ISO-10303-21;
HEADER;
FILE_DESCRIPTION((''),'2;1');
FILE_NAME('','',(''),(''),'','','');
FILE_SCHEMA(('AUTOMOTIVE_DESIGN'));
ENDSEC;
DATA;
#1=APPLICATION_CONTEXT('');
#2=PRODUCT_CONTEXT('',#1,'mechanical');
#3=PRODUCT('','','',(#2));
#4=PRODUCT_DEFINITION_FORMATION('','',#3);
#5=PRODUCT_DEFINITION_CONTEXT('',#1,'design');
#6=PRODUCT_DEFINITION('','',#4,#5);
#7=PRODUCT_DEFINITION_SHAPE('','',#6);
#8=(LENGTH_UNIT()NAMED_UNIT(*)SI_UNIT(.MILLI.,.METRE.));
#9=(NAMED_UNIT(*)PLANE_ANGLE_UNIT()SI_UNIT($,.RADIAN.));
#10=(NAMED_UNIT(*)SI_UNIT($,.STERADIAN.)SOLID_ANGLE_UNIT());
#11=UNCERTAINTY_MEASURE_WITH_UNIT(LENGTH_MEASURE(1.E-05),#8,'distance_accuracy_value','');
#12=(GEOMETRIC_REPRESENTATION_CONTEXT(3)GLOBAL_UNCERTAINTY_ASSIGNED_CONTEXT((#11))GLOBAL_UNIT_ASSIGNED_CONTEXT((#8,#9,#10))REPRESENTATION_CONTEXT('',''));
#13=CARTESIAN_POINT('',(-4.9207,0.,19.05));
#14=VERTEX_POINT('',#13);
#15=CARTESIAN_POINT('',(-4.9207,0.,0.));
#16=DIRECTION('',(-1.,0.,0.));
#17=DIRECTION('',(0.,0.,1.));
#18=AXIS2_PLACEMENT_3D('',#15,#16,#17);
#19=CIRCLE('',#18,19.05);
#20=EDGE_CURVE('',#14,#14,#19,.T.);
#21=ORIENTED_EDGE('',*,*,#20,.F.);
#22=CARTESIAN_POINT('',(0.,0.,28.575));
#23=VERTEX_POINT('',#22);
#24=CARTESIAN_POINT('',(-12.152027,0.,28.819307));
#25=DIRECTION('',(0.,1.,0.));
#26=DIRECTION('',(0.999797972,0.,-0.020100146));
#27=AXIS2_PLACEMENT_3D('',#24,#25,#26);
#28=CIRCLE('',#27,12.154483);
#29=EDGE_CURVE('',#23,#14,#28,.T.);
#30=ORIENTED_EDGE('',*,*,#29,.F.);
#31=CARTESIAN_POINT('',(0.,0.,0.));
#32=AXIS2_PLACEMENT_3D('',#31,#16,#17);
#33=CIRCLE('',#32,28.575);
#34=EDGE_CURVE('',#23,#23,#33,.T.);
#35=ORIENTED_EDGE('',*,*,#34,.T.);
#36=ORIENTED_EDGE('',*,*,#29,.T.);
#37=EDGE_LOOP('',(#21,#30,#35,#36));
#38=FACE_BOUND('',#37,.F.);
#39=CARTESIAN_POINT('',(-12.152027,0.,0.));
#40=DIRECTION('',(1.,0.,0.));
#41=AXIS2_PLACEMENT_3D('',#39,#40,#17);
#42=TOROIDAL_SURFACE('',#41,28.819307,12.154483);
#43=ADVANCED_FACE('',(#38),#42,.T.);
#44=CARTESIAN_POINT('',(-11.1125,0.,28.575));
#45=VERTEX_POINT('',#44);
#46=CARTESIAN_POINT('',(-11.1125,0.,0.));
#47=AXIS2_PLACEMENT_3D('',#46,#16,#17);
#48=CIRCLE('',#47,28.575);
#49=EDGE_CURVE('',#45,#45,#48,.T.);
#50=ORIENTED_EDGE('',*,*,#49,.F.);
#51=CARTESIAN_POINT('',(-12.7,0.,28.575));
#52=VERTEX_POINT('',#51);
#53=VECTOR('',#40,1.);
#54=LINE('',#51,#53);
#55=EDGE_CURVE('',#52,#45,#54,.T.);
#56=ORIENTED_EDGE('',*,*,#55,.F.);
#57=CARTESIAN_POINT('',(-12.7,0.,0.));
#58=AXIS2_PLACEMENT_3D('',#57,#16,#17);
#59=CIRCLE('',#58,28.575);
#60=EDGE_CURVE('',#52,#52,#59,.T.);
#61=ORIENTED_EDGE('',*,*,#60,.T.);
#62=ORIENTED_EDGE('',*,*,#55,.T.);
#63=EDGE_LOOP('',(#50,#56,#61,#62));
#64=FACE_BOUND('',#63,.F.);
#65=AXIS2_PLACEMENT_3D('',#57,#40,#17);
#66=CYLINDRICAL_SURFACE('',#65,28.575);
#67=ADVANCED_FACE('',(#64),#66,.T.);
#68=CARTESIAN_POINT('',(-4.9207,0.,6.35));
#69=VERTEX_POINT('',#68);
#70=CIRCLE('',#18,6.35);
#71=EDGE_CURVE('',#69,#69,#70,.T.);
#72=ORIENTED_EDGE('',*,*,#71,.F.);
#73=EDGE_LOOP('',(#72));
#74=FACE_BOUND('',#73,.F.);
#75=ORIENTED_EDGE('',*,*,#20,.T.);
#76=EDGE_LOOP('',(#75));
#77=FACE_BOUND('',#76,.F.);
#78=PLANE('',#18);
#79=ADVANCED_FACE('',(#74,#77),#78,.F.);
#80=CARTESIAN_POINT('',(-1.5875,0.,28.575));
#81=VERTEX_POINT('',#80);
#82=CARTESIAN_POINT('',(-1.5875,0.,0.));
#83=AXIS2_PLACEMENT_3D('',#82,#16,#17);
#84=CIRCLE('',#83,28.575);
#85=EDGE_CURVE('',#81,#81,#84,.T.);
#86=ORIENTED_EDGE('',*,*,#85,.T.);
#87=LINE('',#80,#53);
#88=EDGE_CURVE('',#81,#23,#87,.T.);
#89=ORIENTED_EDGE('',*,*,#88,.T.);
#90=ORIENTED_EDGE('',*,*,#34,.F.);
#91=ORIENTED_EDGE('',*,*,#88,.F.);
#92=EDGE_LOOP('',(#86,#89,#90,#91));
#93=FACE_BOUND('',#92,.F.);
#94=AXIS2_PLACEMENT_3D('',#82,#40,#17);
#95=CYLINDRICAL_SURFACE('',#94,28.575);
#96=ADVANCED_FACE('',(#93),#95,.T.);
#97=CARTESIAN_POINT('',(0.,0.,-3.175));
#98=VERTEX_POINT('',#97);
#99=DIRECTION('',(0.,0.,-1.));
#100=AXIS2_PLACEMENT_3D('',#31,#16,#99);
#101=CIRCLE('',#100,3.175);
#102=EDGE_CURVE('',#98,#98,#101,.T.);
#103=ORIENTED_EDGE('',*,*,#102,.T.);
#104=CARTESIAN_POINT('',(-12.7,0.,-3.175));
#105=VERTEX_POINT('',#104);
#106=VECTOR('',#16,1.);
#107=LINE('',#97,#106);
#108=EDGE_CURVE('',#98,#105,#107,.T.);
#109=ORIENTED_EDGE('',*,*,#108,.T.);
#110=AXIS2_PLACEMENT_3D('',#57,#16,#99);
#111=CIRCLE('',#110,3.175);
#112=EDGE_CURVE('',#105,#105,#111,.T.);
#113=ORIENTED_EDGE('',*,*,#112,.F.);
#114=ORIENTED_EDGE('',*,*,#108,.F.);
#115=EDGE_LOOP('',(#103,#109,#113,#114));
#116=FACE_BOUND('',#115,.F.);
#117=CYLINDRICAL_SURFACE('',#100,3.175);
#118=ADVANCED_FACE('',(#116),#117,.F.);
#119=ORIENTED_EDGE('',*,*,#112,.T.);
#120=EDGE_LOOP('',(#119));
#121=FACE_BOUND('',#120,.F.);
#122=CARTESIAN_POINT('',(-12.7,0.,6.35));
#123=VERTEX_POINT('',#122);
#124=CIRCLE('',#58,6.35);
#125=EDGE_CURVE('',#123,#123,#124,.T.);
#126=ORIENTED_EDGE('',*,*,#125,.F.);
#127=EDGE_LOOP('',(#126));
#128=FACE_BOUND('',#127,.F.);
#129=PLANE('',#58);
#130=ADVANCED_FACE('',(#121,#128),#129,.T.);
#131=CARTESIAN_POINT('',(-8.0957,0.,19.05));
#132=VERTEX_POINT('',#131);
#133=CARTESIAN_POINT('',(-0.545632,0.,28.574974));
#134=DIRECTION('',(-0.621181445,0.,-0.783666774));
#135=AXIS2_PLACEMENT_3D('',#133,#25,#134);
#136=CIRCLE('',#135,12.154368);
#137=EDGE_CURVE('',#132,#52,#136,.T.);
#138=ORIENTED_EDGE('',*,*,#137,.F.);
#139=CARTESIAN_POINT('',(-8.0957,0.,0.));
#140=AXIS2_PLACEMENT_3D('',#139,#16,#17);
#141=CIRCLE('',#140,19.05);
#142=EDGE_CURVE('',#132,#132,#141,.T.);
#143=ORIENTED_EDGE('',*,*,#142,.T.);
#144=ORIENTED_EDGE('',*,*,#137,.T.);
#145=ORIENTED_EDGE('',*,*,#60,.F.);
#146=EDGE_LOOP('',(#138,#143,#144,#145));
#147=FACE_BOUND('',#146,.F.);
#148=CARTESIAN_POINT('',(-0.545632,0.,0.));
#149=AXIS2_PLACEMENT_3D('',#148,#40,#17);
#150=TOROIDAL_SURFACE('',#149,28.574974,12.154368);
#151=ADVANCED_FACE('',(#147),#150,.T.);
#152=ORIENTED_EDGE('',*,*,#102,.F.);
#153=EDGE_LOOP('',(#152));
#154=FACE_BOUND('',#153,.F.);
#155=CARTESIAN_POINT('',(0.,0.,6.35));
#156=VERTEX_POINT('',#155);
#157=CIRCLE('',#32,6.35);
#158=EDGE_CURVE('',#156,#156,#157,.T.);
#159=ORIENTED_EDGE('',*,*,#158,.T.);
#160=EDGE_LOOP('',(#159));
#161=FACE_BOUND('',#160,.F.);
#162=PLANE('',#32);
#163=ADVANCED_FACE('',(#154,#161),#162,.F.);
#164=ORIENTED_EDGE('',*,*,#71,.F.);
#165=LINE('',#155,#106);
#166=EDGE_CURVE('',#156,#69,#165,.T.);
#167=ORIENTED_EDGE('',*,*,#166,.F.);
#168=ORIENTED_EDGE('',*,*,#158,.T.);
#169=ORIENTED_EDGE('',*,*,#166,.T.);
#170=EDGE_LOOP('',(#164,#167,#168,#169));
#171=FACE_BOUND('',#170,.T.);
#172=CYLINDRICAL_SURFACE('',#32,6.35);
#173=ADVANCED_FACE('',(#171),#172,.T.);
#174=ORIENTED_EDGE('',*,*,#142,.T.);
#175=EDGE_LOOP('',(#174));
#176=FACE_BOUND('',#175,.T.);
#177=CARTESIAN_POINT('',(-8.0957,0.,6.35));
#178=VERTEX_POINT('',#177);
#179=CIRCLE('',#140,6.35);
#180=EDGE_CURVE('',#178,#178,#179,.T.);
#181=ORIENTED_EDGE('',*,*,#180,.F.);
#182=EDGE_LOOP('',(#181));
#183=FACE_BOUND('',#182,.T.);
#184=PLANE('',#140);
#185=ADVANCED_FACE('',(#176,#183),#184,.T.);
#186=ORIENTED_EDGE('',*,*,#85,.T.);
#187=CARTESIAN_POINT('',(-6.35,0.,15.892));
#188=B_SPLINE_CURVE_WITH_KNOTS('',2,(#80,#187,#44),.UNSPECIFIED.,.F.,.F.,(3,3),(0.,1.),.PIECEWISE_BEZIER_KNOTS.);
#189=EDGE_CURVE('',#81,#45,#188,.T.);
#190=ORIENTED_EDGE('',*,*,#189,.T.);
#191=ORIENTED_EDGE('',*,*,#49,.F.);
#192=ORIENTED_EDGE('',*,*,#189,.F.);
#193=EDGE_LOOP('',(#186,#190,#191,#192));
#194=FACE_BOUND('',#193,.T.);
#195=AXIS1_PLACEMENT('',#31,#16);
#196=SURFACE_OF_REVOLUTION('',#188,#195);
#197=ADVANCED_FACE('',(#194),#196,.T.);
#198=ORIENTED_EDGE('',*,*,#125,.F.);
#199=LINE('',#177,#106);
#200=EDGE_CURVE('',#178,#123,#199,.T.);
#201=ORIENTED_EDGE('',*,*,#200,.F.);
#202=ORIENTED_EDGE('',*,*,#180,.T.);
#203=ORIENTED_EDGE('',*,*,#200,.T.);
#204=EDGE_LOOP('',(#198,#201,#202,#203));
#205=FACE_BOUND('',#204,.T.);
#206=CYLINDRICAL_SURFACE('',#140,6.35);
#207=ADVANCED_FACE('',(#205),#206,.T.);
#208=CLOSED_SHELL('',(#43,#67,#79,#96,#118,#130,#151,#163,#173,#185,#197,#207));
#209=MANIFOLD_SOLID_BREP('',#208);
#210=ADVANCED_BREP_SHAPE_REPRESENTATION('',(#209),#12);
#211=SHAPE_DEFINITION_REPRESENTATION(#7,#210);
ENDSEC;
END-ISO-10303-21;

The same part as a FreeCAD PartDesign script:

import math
import FreeCAD as App
import Part
import Sketcher

V = App.Vector
Q = App.Units.Quantity

doc = App.newDocument("Part")
body = doc.addObject("PartDesign::Body", "Body")

# Sketch on XZ plane
sketch1 = doc.addObject("Sketcher::SketchObject", "Sketch")
body.addObject(sketch1)
sketch1.AttachmentSupport = (doc.XZ_Plane, [""])
sketch1.MapMode = "FlatFace"
sketch1.addGeometry([
    Part.LineSegment(V(0, 6.35, 0), V(0, 0, 0)),  # 0
    Part.LineSegment(V(0, 0, 0), V(-12.7, 0, 0)),  # 1
    Part.LineSegment(V(-12.7, 0, 0), V(-12.7, 6.35, 0)),  # 2
    Part.LineSegment(V(-12.7, 6.35, 0), V(-8.0957, 6.35, 0)),  # 3
    Part.LineSegment(V(-8.0957, 6.35, 0), V(-8.0957, 19.05, 0)),  # 4
    Part.ArcOfCircle(Part.Circle(V(-0.5456, 28.575, 0), V(0, 0, 1), 12.154408), math.radians(180), math.radians(231.597495)),  # 5
    Part.LineSegment(V(-12.7, 28.575, 0), V(-11.1125, 28.575, 0)),  # 6
    Part.BSplineCurve([V(-1.5875, 28.575, 0), V(-6.35, 15.892, 0), V(-11.1125, 28.575, 0)], [3, 3], [0, 1], False, 2, [1, 1, 1], False),  # 7
    Part.LineSegment(V(-1.5875, 28.575, 0), V(0, 28.575, 0)),  # 8
    Part.ArcOfCircle(Part.Circle(V(-12.152, 28.8193, 0), V(0, 0, 1), 12.154455), math.radians(-53.490912), math.radians(-1.151701)),  # 9
    Part.LineSegment(V(-4.9207, 19.05, 0), V(-4.9207, 6.35, 0)),  # 10
    Part.LineSegment(V(-4.9207, 6.35, 0), V(0, 6.35, 0)),  # 11
], False)
sketch1.addConstraint([
    Sketcher.Constraint("Block", 7),
    Sketcher.Constraint("Coincident", 0, 2, 1, 1),
    Sketcher.Constraint("Coincident", 1, 2, 2, 1),
    Sketcher.Constraint("Coincident", 2, 2, 3, 1),
    Sketcher.Constraint("Coincident", 3, 2, 4, 1),
    Sketcher.Constraint("Coincident", 4, 2, 5, 2),
    Sketcher.Constraint("Coincident", 5, 1, 6, 1),
    Sketcher.Constraint("Coincident", 6, 2, 7, 2),
    Sketcher.Constraint("Coincident", 7, 1, 8, 1),
    Sketcher.Constraint("Coincident", 8, 2, 9, 2),
    Sketcher.Constraint("Coincident", 9, 1, 10, 1),
    Sketcher.Constraint("Coincident", 10, 2, 11, 1),
    Sketcher.Constraint("Coincident", 11, 2, 0, 1),
    Sketcher.Constraint("Vertical", 0),
    Sketcher.Constraint("Horizontal", 1),
    Sketcher.Constraint("Vertical", 2),
    Sketcher.Constraint("Horizontal", 3),
    Sketcher.Constraint("Vertical", 4),
    Sketcher.Constraint("Horizontal", 6),
    Sketcher.Constraint("Horizontal", 8),
    Sketcher.Constraint("Vertical", 10),
    Sketcher.Constraint("Horizontal", 11),
    Sketcher.Constraint("Coincident", 0, 2, -1, 1),
    Sketcher.Constraint("Equal", 5, 9),
    Sketcher.Constraint("PointOnObject", 8, 2, -2),
    Sketcher.Constraint("Horizontal", 4, 2, 9, 1),
    Sketcher.Constraint("Horizontal", 3, 2, 10, 2),
    Sketcher.Constraint("Vertical", 2, 2, 5, 1),
    Sketcher.Constraint("Equal", 6, 8),
    Sketcher.Constraint("Equal", 1, 4),
    Sketcher.Constraint("DistanceY", 0, 2, 0, 1, Q("0.25 in")),
    Sketcher.Constraint("DistanceY", -1, 1, 5, 3, Q("1.125 in")),
    Sketcher.Constraint("DistanceX", 4, 2, 9, 1, Q("0.125 in")),
    Sketcher.Constraint("Radius", 5, 12.1544),
])
revolution = doc.addObject("PartDesign::Revolution", "Revolution")
body.addObject(revolution)
revolution.Profile = sketch1
revolution.ReferenceAxis = (sketch1, ["H_Axis"])
revolution.Angle = 360

# Sketch on YZ plane
sketch2 = doc.addObject("Sketcher::SketchObject", "Sketch001")
body.addObject(sketch2)
sketch2.AttachmentSupport = (doc.YZ_Plane, [""])
sketch2.MapMode = "FlatFace"
sketch2.addGeometry(Part.Circle(V(0, 0, 0), V(0, 0, 1), 3.2), False)
sketch2.addConstraint([
    Sketcher.Constraint("Coincident", 0, 3, -1, 1),
    Sketcher.Constraint("Diameter", 0, Q("0.25 in")),
])
doc.recompute()
hole = doc.addObject("PartDesign::Hole", "Hole")
body.addObject(hole)
hole.Profile = sketch2
hole.ThreadType = "None"
hole.Diameter = Q("0.25 in")
hole.DepthType = "ThroughAll"

doc.recompute()
